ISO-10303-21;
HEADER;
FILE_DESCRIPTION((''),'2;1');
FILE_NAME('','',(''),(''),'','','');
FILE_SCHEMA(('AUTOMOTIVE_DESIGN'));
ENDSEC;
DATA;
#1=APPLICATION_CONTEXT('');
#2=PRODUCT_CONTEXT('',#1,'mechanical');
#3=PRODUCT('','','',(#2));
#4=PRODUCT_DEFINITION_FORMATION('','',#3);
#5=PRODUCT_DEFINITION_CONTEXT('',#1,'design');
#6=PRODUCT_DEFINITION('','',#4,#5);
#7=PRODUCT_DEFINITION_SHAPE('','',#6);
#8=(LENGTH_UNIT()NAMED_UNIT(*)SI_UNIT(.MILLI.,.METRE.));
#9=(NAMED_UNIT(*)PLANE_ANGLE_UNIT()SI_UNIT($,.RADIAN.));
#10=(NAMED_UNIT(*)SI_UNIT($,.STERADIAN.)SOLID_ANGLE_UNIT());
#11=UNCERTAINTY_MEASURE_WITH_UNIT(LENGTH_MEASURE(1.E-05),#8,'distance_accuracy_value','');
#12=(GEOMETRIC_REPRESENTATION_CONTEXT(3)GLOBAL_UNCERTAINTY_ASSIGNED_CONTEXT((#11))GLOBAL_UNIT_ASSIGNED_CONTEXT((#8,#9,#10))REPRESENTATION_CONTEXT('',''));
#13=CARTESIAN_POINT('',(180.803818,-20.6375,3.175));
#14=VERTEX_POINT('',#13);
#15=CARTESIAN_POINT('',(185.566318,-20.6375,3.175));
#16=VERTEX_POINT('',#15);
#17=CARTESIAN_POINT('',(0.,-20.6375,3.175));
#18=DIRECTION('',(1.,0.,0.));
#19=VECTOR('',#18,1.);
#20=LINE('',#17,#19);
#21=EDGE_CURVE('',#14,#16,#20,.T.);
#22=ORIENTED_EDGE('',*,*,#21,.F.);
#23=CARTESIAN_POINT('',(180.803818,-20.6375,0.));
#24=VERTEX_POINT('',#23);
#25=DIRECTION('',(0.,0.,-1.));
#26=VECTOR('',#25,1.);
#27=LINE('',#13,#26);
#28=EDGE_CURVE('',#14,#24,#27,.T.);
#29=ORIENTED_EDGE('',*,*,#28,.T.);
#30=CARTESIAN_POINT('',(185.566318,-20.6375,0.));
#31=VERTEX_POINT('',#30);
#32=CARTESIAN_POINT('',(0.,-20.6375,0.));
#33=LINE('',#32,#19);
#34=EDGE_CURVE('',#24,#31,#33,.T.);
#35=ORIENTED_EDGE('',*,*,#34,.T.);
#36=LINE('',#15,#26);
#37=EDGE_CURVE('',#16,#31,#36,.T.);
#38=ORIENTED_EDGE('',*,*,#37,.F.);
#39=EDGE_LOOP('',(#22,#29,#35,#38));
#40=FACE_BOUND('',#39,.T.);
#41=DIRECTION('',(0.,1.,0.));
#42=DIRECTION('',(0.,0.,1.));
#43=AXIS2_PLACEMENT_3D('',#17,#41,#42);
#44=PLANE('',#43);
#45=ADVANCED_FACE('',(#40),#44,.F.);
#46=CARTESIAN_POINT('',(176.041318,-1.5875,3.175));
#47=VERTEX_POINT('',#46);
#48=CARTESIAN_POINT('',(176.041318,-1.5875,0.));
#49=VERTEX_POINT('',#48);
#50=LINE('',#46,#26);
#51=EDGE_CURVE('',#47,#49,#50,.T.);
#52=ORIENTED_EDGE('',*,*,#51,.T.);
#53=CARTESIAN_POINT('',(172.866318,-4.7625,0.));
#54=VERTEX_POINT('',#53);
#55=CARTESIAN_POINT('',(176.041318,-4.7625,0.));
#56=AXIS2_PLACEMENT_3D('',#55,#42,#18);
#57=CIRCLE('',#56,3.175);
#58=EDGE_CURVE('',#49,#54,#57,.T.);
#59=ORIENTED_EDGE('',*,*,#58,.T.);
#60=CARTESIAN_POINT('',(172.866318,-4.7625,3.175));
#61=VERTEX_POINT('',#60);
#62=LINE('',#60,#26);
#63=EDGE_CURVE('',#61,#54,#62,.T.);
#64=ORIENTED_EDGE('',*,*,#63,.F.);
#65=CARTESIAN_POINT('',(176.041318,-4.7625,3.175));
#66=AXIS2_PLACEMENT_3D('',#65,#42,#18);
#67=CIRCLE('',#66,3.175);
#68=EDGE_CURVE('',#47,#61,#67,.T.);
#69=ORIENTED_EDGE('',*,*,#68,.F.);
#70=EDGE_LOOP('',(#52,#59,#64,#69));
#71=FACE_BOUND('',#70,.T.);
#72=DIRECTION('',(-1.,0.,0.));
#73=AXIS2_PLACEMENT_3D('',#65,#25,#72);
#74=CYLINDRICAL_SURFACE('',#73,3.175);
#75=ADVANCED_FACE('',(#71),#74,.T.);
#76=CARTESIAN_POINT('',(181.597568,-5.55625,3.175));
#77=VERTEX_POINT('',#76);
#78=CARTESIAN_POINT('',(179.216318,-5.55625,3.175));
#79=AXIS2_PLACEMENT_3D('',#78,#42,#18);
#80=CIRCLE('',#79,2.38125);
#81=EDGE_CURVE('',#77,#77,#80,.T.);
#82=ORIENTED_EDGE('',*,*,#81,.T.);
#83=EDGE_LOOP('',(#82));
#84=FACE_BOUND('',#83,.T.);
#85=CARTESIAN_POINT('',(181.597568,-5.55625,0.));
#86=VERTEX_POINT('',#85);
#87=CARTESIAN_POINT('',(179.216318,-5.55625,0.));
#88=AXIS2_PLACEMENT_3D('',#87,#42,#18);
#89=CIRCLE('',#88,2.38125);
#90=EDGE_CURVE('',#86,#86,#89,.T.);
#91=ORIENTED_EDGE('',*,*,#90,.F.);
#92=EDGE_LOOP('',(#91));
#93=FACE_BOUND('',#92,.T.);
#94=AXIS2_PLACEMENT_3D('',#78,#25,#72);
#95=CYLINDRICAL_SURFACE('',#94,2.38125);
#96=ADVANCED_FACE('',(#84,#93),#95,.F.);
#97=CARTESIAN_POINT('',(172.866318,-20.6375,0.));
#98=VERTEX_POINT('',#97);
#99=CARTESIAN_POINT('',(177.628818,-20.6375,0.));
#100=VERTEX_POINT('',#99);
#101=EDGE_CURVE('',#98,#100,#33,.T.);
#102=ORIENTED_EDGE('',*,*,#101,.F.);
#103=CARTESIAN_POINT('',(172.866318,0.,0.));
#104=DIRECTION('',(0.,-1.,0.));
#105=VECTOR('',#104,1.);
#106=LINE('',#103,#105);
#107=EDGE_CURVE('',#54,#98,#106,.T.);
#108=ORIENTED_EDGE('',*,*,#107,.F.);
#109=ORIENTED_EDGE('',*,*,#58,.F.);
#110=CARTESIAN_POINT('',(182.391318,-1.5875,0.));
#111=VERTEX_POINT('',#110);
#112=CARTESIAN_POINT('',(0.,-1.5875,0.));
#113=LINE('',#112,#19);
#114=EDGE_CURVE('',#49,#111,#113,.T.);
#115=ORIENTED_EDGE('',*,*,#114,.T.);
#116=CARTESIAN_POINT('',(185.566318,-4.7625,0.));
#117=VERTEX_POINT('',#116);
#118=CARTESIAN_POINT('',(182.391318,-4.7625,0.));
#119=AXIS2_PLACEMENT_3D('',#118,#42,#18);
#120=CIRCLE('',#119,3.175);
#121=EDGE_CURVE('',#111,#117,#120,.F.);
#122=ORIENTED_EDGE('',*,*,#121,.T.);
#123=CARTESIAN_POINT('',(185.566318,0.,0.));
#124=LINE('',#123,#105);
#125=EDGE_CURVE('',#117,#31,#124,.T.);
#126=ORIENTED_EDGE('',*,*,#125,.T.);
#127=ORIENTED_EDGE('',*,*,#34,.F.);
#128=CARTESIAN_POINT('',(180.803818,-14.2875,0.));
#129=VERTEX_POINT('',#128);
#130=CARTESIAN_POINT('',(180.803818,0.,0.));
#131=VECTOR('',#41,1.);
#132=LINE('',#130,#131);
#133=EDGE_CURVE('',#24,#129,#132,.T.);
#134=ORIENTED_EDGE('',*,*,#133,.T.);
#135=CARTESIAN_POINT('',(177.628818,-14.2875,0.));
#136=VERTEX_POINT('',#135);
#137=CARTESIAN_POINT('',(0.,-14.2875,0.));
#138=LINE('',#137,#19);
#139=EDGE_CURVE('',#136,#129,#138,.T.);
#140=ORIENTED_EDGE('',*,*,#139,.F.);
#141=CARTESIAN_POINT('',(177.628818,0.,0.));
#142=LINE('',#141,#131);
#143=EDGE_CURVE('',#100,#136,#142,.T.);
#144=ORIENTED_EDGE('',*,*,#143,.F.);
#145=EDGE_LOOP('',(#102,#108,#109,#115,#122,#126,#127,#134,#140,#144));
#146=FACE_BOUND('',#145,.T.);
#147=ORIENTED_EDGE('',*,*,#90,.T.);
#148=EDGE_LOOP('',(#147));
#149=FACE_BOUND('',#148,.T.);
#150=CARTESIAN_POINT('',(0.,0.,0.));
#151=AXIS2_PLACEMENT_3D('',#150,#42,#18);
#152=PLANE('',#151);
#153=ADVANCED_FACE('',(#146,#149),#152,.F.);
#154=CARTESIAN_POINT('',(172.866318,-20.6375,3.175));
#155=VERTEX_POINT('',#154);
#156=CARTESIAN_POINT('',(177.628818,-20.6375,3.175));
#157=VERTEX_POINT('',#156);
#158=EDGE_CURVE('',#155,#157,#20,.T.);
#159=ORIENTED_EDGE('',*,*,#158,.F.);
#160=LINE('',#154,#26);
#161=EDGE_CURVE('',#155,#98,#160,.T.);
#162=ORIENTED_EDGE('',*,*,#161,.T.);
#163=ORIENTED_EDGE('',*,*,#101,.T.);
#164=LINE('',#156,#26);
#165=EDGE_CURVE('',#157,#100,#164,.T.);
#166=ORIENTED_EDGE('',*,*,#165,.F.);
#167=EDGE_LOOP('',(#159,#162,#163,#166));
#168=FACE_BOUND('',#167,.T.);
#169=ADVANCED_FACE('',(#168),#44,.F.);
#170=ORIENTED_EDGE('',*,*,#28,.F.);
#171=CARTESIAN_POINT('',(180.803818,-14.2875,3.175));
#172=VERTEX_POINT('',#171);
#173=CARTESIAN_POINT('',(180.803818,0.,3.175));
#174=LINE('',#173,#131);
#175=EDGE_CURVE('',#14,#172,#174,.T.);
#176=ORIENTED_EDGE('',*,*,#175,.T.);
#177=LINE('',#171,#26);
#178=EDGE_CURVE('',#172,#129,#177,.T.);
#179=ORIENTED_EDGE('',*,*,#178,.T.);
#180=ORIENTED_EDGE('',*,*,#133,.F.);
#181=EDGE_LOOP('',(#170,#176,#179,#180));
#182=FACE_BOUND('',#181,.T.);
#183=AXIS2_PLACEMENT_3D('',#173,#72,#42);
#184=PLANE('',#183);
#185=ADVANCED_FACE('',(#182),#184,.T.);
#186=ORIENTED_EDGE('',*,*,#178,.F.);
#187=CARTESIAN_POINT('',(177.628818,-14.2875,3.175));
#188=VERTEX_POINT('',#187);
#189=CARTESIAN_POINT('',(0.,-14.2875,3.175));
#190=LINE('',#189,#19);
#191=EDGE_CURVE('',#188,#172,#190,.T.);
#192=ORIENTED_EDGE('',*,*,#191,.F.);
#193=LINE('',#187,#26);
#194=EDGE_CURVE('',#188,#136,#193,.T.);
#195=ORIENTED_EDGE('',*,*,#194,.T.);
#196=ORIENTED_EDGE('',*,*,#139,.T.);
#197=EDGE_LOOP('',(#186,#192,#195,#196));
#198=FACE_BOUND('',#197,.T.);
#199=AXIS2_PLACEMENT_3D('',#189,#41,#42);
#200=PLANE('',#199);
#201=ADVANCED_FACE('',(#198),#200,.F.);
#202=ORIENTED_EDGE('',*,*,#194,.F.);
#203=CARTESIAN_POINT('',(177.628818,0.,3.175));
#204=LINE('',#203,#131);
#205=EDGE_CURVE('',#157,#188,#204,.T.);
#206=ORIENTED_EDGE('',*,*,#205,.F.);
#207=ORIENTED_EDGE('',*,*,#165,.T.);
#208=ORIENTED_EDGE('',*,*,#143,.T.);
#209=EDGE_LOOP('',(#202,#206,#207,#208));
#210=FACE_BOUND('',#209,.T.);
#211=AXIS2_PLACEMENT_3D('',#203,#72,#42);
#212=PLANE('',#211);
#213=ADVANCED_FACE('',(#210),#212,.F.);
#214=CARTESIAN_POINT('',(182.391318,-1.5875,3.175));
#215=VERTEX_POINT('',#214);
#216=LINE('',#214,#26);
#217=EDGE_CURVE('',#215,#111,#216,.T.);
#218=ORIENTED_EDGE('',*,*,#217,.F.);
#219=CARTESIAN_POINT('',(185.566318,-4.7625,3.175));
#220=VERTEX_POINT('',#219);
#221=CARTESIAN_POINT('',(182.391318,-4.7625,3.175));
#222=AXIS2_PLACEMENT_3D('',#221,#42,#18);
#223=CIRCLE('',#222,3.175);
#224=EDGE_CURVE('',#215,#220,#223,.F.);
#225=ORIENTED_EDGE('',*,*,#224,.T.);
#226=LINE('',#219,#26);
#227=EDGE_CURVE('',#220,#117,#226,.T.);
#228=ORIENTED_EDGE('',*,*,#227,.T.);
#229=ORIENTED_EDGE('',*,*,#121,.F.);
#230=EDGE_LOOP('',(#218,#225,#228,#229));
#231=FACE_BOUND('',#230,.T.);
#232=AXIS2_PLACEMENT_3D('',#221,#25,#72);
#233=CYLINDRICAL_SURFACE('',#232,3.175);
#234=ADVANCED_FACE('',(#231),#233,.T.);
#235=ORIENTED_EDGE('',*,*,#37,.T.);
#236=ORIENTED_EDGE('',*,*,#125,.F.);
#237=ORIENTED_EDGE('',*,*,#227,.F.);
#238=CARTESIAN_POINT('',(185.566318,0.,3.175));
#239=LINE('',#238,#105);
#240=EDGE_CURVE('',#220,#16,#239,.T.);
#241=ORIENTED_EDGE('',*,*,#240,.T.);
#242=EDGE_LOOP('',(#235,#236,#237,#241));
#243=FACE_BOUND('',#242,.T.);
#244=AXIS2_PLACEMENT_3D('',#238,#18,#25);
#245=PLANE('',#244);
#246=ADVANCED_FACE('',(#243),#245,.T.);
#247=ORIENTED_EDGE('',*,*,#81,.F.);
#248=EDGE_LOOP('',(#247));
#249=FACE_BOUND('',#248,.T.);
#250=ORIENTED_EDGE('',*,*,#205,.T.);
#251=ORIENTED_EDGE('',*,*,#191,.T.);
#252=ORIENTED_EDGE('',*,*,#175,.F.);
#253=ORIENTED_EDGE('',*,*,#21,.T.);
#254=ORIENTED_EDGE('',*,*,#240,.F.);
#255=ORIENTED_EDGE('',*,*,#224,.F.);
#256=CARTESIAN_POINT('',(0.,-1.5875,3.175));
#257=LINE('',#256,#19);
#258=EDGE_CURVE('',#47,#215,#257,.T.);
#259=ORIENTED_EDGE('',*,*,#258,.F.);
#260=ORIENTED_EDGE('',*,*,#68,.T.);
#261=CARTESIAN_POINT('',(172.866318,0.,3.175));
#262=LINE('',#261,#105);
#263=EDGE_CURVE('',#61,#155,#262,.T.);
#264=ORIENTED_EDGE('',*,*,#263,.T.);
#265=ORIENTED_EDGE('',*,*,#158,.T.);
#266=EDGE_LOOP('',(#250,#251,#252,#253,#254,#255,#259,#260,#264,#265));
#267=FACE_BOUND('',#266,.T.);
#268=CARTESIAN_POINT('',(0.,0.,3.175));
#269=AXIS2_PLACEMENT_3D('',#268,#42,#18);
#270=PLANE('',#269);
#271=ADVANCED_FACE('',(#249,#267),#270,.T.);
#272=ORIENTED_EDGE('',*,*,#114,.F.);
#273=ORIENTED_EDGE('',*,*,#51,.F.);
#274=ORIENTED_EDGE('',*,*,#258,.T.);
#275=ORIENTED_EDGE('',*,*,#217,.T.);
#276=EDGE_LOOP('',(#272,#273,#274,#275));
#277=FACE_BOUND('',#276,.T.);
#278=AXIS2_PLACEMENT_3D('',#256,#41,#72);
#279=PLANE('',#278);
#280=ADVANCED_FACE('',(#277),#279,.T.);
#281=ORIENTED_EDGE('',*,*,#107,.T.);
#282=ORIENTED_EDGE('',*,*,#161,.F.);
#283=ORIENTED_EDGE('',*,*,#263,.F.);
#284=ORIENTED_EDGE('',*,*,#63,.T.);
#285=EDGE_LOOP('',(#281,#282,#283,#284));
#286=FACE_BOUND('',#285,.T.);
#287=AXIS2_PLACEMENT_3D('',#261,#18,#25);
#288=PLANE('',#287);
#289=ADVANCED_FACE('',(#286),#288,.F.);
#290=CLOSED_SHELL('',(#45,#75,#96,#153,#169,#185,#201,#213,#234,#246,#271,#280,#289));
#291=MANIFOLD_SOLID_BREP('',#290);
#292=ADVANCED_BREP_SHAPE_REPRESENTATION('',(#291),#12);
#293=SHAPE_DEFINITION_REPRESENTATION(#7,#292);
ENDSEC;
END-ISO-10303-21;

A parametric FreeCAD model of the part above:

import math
import FreeCAD as App
import Part
import Sketcher
Q = App.Units.Quantity

doc = App.newDocument("Part")
body = doc.addObject("PartDesign::Body", "Body")

# Sketch on XY plane
sketch1 = doc.addObject("Sketcher::SketchObject", "Sketch")
body.addObject(sketch1)
sketch1.AttachmentSupport = (doc.XY_Plane, [""])
sketch1.MapMode = "FlatFace"
sketch1.addGeometry([
    Part.LineSegment(App.Vector(182.4, -1.6, 0), App.Vector(176, -1.6, 0)),  # 0
    Part.ArcOfCircle(Part.Circle(App.Vector(176, -4.8, 0), App.Vector(0, 0, 1), 3.2), math.radians(90), math.radians(180)),  # 1
    Part.LineSegment(App.Vector(172.9, -4.8, 0), App.Vector(172.9, -20.6, 0)),  # 2
    Part.LineSegment(App.Vector(172.9, -20.6, 0), App.Vector(177.6, -20.6, 0)),  # 3
    Part.LineSegment(App.Vector(177.6, -20.6, 0), App.Vector(177.6, -14.3, 0)),  # 4
    Part.LineSegment(App.Vector(177.6, -14.3, 0), App.Vector(180.8, -14.3, 0)),  # 5
    Part.LineSegment(App.Vector(180.8, -14.3, 0), App.Vector(180.8, -20.6, 0)),  # 6
    Part.LineSegment(App.Vector(180.8, -20.6, 0), App.Vector(185.6, -20.6, 0)),  # 7
    Part.LineSegment(App.Vector(185.6, -20.6, 0), App.Vector(185.6, -4.8, 0)),  # 8
    Part.ArcOfCircle(Part.Circle(App.Vector(182.4, -4.8, 0), App.Vector(0, 0, 1), 3.2), math.radians(0), math.radians(90)),  # 9
    Part.Circle(App.Vector(179.2, -5.6, 0), App.Vector(0, 0, 1), 2.4),  # 10
], False)
sketch1.addConstraint([
    Sketcher.Constraint("Tangent", 0, 2, 1, 1),
    Sketcher.Constraint("Tangent", 1, 2, 2, 1),
    Sketcher.Constraint("Coincident", 2, 2, 3, 1),
    Sketcher.Constraint("Coincident", 3, 2, 4, 1),
    Sketcher.Constraint("Coincident", 4, 2, 5, 1),
    Sketcher.Constraint("Coincident", 5, 2, 6, 1),
    Sketcher.Constraint("Coincident", 6, 2, 7, 1),
    Sketcher.Constraint("Coincident", 7, 2, 8, 1),
    Sketcher.Constraint("Tangent", 8, 2, 9, 1),
    Sketcher.Constraint("Tangent", 9, 2, 0, 1),
    Sketcher.Constraint("Horizontal", 0),
    Sketcher.Constraint("Vertical", 2),
    Sketcher.Constraint("Horizontal", 3),
    Sketcher.Constraint("Vertical", 4),
    Sketcher.Constraint("Horizontal", 5),
    Sketcher.Constraint("Vertical", 6),
    Sketcher.Constraint("Horizontal", 7),
    Sketcher.Constraint("Vertical", 8),
    Sketcher.Constraint("Equal", 1, 9),
    Sketcher.Constraint("Horizontal", 3, 2, 6, 2),
    Sketcher.Constraint("Equal", 3, 7),
    Sketcher.Constraint("Equal", 0, 4),
    Sketcher.Constraint("Diameter", 10, Q("0.1875 in")),
    Sketcher.Constraint("Radius", 1, Q("0.125 in")),
    Sketcher.Constraint("DistanceX", 0, 2, 0, 1, Q("0.25 in")),
    Sketcher.Constraint("DistanceX", 3, 1, 3, 2, Q("0.1875 in")),
    Sketcher.Constraint("DistanceY", 2, 2, 2, 1, Q("0.625 in")),
    Sketcher.Constraint("DistanceX", 1, 2, 10, 3, Q("0.25 in")),
    Sketcher.Constraint("DistanceY", 1, 3, -1, 1, Q("0.1875 in")),
    Sketcher.Constraint("DistanceY", 10, 3, -1, 1, Q("0.21875 in")),
    Sketcher.Constraint("DistanceX", -1, 1, 1, 3, Q("176.041318 mm")),
])
pad1 = doc.addObject("PartDesign::Pad", "Pad")
body.addObject(pad1)
pad1.Profile = sketch1
pad1.Length = Q("0.125 in")

doc.recompute()
